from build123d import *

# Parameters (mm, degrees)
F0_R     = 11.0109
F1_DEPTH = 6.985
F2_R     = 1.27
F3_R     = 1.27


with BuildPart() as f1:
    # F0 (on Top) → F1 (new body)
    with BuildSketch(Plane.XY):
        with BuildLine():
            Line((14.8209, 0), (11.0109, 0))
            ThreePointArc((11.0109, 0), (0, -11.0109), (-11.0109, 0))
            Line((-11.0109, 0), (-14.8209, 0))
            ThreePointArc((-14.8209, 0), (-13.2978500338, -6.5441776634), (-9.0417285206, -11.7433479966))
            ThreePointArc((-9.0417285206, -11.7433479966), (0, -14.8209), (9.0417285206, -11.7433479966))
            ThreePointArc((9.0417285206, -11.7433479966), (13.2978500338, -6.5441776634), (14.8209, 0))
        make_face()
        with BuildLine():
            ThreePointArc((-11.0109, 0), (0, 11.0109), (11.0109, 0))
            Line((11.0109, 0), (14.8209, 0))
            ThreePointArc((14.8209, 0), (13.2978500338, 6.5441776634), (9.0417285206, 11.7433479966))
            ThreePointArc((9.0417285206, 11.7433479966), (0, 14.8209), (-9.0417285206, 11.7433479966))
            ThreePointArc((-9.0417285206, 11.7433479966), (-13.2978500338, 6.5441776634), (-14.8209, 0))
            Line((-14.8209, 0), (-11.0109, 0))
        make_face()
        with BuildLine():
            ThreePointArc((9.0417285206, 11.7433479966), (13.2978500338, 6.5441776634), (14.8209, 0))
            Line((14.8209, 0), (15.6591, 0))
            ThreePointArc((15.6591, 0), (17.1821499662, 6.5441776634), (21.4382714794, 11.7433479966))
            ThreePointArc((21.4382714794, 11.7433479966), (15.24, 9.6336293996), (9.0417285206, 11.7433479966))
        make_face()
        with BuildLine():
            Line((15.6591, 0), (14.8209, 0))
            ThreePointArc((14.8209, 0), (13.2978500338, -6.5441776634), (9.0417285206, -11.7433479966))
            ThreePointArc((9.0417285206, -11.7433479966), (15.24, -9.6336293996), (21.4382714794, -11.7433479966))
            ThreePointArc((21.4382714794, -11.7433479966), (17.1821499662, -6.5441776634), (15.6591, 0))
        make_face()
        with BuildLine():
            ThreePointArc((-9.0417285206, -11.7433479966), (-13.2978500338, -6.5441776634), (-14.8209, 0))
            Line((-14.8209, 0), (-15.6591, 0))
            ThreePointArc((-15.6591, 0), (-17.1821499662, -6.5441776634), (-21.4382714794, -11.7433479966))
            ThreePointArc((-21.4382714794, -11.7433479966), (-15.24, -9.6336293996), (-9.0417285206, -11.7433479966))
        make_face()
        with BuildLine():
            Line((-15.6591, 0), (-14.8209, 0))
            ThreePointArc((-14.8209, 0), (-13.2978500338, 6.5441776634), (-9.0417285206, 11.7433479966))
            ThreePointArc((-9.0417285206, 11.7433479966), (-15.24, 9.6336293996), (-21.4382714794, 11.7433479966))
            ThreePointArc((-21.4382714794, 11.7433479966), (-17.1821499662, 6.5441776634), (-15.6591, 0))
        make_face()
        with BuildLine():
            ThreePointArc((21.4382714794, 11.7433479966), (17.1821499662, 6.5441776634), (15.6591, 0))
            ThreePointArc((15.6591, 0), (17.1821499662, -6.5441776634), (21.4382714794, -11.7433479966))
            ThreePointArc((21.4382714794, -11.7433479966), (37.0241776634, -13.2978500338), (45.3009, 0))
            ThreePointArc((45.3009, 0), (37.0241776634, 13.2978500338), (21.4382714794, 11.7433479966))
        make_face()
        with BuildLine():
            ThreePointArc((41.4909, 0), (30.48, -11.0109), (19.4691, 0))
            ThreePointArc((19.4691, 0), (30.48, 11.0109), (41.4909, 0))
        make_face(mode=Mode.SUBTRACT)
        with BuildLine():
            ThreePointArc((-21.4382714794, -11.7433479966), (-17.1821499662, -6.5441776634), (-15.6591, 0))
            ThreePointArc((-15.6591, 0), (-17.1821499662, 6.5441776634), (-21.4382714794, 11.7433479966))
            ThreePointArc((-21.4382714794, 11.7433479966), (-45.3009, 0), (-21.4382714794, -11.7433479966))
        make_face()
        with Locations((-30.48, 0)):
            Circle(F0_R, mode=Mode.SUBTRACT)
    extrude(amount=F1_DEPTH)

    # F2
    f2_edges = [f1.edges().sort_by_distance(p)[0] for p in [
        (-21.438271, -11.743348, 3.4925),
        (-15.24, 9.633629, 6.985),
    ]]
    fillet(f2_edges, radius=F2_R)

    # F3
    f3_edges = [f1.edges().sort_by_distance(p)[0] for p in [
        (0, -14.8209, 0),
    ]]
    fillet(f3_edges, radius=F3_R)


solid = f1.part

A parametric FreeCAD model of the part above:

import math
import FreeCAD as App
import Part
import Sketcher
from FreeCAD import Vector
Q = App.Units.Quantity


def edges_at(feature, points):
    """Names of the edges that pass closest to the given points."""
    edges = feature.Shape.Edges
    near = lambda p: min(range(len(edges)), key=lambda i: edges[i].distToShape(Part.Vertex(*p))[0])
    return sorted({f"Edge{near(p) + 1}" for p in points})

doc = App.newDocument("Part")
body = doc.addObject("PartDesign::Body", "Body")

# Sketch on XY plane
sketch1 = body.newObject("Sketcher::SketchObject", "Sketch")
sketch1.AttachmentSupport = (doc.getObject("XY_Plane"), [""])
sketch1.MapMode = "FlatFace"
sketch1.addGeometry([
    Part.ArcOfCircle(Part.Circle(Vector(0, 0, 0), Vector(0, 0, 1), 15), math.radians(-128), math.radians(-52)),  # 0
    Part.ArcOfCircle(Part.Circle(Vector(15, -20, 0), Vector(0, 0, 1), 10), math.radians(52), math.radians(128)),  # 1
    Part.ArcOfCircle(Part.Circle(Vector(30, 0, 0), Vector(0, 0, 1), 15), math.radians(-128), math.radians(0)),  # 2
    Part.ArcOfCircle(Part.Circle(Vector(30, 0, 0), Vector(0, 0, 1), 15), math.radians(0), math.radians(128)),  # 3
    Part.ArcOfCircle(Part.Circle(Vector(15, 20, 0), Vector(0, 0, 1), 10), math.radians(-128), math.radians(-52)),  # 4
    Part.ArcOfCircle(Part.Circle(Vector(0, 0, 0), Vector(0, 0, 1), 15), math.radians(52), math.radians(128)),  # 5
    Part.ArcOfCircle(Part.Circle(Vector(-15, 20, 0), Vector(0, 0, 1), 10), math.radians(-128), math.radians(-52)),  # 6
    Part.ArcOfCircle(Part.Circle(Vector(-30, 0, 0), Vector(0, 0, 1), 15), math.radians(52), math.radians(308)),  # 7
    Part.ArcOfCircle(Part.Circle(Vector(-15, -20, 0), Vector(0, 0, 1), 10), math.radians(52), math.radians(128)),  # 8
    Part.Circle(Vector(-30, 0, 0), Vector(0, 0, 1), 11),  # 9
    Part.Circle(Vector(0, 0, 0), Vector(0, 0, 1), 11),  # 10
    Part.Circle(Vector(30, 0, 0), Vector(0, 0, 1), 11),  # 11
], False)
sketch1.addConstraint([
    Sketcher.Constraint("Tangent", 0, 2, 1, 2),
    Sketcher.Constraint("Tangent", 1, 1, 2, 1),
    Sketcher.Constraint("Tangent", 2, 2, 3, 1),
    Sketcher.Constraint("Tangent", 3, 2, 4, 2),
    Sketcher.Constraint("Tangent", 4, 1, 5, 1),
    Sketcher.Constraint("Tangent", 5, 2, 6, 2),
    Sketcher.Constraint("Tangent", 6, 1, 7, 1),
    Sketcher.Constraint("Tangent", 7, 2, 8, 2),
    Sketcher.Constraint("Tangent", 8, 1, 0, 1),
    Sketcher.Constraint("Coincident", 0, 3, -1, 1),
    Sketcher.Constraint("Coincident", 5, 3, -1, 1),
    Sketcher.Constraint("Coincident", 10, 3, -1, 1),
    Sketcher.Constraint("Coincident", 9, 3, 7, 3),
    Sketcher.Constraint("Coincident", 11, 3, 2, 3),
    Sketcher.Constraint("Equal", 0, 2),
    Sketcher.Constraint("Equal", 2, 3),
    Sketcher.Constraint("Equal", 1, 4),
    Sketcher.Constraint("Equal", 3, 5),
    Sketcher.Constraint("Equal", 4, 6),
    Sketcher.Constraint("Equal", 5, 7),
    Sketcher.Constraint("Equal", 6, 8),
    Sketcher.Constraint("Equal", 9, 10),
    Sketcher.Constraint("Equal", 10, 11),
    Sketcher.Constraint("Symmetric", 2, 3, 7, 3, -1, 1),
    Sketcher.Constraint("PointOnObject", 2, 3, -1),
    Sketcher.Constraint("PointOnObject", 2, 2, -1),
    Sketcher.Constraint("Radius", 1, Q("0.4 in")),
    Sketcher.Constraint("Diameter", 9, Q("0.867 in")),
    Sketcher.Constraint("DistanceX", -1, 1, 1, 3, Q("0.6 in")),
    Sketcher.Constraint("Radius", 0, Q("0.5835 in")),
])
pad1 = body.newObject("PartDesign::Pad", "Pad")
pad1.Profile = sketch1
pad1.Length = Q("0.275 in")
doc.recompute()

fillet = body.newObject("PartDesign::Fillet", "Fillet")
fillet.Base = (pad1, edges_at(pad1, [(-21.438, -11.743, 3.493), (-15.24, 9.634, 6.985)]))
fillet.Radius = Q("0.05 in")
doc.recompute()

fillet2 = body.newObject("PartDesign::Fillet", "Fillet001")
fillet2.Base = (fillet, edges_at(fillet, [(0, -14.821, 0)]))
fillet2.Radius = Q("0.05 in")

doc.recompute()
